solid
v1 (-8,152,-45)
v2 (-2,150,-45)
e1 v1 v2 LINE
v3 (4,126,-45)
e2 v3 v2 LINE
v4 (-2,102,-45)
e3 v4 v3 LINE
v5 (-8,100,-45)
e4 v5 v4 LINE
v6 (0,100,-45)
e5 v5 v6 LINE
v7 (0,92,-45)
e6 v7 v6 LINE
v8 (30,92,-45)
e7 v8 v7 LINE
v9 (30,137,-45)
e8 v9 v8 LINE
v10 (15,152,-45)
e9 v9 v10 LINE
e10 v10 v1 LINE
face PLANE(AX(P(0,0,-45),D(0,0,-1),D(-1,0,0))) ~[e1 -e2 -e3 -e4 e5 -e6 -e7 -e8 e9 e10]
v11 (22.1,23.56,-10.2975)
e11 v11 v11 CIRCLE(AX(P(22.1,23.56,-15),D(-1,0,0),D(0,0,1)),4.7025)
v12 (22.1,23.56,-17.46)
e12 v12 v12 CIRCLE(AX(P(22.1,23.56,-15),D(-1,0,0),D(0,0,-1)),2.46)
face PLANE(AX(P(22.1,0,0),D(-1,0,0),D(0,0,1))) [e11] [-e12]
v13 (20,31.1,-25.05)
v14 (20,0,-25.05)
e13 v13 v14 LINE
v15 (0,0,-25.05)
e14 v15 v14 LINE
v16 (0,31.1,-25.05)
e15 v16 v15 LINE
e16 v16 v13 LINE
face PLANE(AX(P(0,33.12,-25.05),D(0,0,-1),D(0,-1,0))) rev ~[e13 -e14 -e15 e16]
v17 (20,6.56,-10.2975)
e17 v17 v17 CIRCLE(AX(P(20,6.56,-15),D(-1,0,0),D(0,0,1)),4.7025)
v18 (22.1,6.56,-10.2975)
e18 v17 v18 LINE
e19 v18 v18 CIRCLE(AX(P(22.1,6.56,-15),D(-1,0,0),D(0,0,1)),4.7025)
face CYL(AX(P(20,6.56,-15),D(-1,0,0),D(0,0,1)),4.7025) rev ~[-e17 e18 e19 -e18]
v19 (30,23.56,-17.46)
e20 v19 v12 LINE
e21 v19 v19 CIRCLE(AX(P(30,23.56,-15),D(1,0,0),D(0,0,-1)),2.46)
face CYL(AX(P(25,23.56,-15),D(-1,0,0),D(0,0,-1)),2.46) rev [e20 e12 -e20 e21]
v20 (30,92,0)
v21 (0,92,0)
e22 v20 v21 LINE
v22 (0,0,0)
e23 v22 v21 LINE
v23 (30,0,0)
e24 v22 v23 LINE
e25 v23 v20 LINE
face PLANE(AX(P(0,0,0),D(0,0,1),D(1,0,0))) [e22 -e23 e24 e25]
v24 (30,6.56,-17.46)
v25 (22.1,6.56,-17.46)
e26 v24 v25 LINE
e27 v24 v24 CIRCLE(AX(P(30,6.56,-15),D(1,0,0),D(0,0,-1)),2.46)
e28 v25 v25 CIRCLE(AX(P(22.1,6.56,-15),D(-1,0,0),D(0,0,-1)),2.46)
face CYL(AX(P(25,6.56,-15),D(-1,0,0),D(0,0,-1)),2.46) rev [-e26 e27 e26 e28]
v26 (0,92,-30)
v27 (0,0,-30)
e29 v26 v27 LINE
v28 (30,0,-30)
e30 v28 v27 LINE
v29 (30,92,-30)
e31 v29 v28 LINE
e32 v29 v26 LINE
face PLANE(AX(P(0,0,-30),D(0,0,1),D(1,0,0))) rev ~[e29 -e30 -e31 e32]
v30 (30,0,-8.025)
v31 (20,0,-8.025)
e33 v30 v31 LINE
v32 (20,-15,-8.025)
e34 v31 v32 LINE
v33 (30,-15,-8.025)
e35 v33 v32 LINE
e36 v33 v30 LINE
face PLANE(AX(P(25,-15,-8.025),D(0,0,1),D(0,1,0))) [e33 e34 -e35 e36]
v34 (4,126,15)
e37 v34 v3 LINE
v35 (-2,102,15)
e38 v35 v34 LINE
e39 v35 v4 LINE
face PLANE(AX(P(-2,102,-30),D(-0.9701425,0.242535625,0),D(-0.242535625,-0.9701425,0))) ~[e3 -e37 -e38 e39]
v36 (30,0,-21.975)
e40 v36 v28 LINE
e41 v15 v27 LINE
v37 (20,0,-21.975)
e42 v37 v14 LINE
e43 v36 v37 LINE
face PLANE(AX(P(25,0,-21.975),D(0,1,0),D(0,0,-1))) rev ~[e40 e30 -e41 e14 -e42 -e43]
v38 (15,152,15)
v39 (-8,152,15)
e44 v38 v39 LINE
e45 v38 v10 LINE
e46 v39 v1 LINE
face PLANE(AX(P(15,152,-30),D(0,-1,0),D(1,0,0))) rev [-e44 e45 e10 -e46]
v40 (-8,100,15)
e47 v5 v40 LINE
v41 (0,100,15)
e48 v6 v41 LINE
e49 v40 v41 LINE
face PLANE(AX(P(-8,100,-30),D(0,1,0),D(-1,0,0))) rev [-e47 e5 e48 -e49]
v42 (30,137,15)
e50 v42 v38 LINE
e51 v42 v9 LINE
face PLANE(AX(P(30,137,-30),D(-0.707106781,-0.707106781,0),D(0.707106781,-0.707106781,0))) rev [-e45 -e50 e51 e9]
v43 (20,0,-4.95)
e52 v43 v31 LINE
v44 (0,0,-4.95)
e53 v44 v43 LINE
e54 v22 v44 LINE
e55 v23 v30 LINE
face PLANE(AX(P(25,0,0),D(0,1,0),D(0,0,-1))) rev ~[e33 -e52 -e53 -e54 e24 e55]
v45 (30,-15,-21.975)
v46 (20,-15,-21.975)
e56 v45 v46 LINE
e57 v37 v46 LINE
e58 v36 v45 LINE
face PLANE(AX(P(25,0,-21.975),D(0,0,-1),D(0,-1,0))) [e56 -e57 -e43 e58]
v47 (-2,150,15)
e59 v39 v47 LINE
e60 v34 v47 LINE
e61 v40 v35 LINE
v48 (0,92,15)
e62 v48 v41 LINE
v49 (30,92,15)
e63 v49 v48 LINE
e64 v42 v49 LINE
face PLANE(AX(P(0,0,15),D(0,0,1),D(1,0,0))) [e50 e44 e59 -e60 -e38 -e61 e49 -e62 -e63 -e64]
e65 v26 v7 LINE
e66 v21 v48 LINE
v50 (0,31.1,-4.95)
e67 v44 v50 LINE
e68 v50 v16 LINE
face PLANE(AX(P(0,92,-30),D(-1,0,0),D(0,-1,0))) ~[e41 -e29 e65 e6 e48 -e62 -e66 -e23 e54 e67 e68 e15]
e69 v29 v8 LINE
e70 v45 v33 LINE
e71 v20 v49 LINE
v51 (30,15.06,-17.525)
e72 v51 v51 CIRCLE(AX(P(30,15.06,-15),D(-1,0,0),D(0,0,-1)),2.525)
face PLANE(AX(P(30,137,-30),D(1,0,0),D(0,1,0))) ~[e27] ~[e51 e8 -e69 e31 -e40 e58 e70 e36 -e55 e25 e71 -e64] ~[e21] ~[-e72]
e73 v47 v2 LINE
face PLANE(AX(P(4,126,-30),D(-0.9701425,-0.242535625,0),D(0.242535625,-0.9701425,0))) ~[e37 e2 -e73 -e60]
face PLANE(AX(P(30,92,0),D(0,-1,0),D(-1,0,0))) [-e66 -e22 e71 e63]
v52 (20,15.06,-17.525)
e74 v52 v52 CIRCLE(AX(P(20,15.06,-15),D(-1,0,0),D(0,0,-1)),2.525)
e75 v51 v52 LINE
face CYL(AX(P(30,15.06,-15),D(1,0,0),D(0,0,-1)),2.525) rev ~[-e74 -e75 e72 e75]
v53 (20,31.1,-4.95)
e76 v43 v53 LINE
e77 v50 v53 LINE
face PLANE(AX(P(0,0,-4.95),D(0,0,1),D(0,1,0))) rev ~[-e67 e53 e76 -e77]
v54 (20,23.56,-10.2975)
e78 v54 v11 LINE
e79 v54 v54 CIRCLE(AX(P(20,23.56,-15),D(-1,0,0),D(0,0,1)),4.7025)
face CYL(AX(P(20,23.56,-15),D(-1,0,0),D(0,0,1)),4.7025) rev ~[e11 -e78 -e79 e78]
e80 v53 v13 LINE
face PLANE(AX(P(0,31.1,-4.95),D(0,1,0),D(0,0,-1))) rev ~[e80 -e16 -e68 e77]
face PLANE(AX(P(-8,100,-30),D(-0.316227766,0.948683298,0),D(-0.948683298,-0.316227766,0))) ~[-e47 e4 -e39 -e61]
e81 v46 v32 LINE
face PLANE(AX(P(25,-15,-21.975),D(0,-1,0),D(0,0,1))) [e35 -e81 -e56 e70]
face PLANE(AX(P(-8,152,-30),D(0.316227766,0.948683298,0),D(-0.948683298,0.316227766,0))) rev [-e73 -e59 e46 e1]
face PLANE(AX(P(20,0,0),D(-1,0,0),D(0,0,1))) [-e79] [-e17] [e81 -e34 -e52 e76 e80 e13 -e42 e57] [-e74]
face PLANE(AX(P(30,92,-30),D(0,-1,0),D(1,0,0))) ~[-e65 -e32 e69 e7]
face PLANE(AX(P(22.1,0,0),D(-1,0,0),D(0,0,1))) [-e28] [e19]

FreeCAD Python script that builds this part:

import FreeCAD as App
import Part
import Sketcher
Q = App.Units.Quantity

doc = App.newDocument("Part")
body = doc.addObject("PartDesign::Body", "Body")

# Sketch on XY plane
sketch1 = body.newObject("Sketcher::SketchObject", "Sketch")
sketch1.AttachmentSupport = (doc.getObject("XY_Plane"), [""])
sketch1.MapMode = "FlatFace"
sketch1.addGeometry([
    Part.LineSegment(App.Vector(0, 40, 0), App.Vector(0, 0, 0)),
    Part.LineSegment(App.Vector(0, 0, 0), App.Vector(25, 0, 0)),
    Part.LineSegment(App.Vector(25, 0, 0), App.Vector(25, 40, 0)),
    Part.LineSegment(App.Vector(25, 40, 0), App.Vector(0, 40, 0)),
], False)
sketch1.addConstraint([
    Sketcher.Constraint("Coincident", 0, 2, 1, 1),
    Sketcher.Constraint("Coincident", 1, 2, 2, 1),
    Sketcher.Constraint("Coincident", 2, 2, 3, 1),
    Sketcher.Constraint("Coincident", 3, 2, 0, 1),
    Sketcher.Constraint("Vertical", 0),
    Sketcher.Constraint("Horizontal", 1),
    Sketcher.Constraint("Vertical", 2),
    Sketcher.Constraint("Horizontal", 3),
    Sketcher.Constraint("Coincident", 0, 2, -1, 1),
    Sketcher.Constraint("DistanceX", 1, 1, 1, 2, Q("25 mm")),
    Sketcher.Constraint("DistanceY", 0, 2, 0, 1, Q("40 mm")),
])
pad1 = body.newObject("PartDesign::Pad", "Pad")
pad1.Profile = sketch1
pad1.Length = 30
pad1.Reversed = True

# Sketch on YZ plane
sketch2 = body.newObject("Sketcher::SketchObject", "Sketch001")
sketch2.AttachmentSupport = (doc.getObject("YZ_Plane"), [""])
sketch2.MapMode = "FlatFace"
sketch2.AttachmentOffset = App.Placement(App.Vector(0, 0, 25), App.Rotation())
sketch2.addGeometry(Part.Circle(App.Vector(6.56, -15, 0), App.Vector(0, 0, 1), 2.46), False)
sketch2.addConstraint([
    Sketcher.Constraint("Diameter", 0, Q("4.92 mm")),
    Sketcher.Constraint("DistanceY", 0, 3, -1, 1, Q("15 mm")),
    Sketcher.Constraint("DistanceX", -1, 1, 0, 3, Q("6.56 mm")),
])
pocket1 = body.newObject("PartDesign::Pocket", "Pocket")
pocket1.Profile = sketch2
pocket1.Length = 30

# Sketch on YZ plane
sketch3 = body.newObject("Sketcher::SketchObject", "Sketch002")
sketch3.AttachmentSupport = (doc.getObject("YZ_Plane"), [""])
sketch3.MapMode = "FlatFace"
sketch3.addGeometry([
    Part.LineSegment(App.Vector(0, -25.05, 0), App.Vector(0, -4.95, 0)),
    Part.LineSegment(App.Vector(0, -4.95, 0), App.Vector(33.12, -4.95, 0)),
    Part.LineSegment(App.Vector(33.12, -4.95, 0), App.Vector(33.12, -25.05, 0)),
    Part.LineSegment(App.Vector(33.12, -25.05, 0), App.Vector(0, -25.05, 0)),
], False)
sketch3.addConstraint([
    Sketcher.Constraint("Coincident", 0, 2, 1, 1),
    Sketcher.Constraint("Coincident", 1, 2, 2, 1),
    Sketcher.Constraint("Coincident", 2, 2, 3, 1),
    Sketcher.Constraint("Coincident", 3, 2, 0, 1),
    Sketcher.Constraint("Vertical", 0),
    Sketcher.Constraint("Horizontal", 1),
    Sketcher.Constraint("Vertical", 2),
    Sketcher.Constraint("Horizontal", 3),
    Sketcher.Constraint("PointOnObject", 0, 2, -2),
    Sketcher.Constraint("DistanceY", 0, 1, 0, 2, Q("20.1 mm")),
    Sketcher.Constraint("DistanceX", 1, 1, 1, 2, Q("33.12 mm")),
    Sketcher.Constraint("DistanceY", 0, 2, -1, 1, Q("4.95 mm")),
])
pocket2 = body.newObject("PartDesign::Pocket", "Pocket001")
pocket2.Profile = sketch3
pocket2.Length = 20
pocket2.Reversed = True

# Sketch on XZ plane
sketch4 = body.newObject("Sketcher::SketchObject", "Sketch003")
sketch4.AttachmentSupport = (doc.getObject("XZ_Plane"), [""])
sketch4.MapMode = "FlatFace"
sketch4.addGeometry([
    Part.LineSegment(App.Vector(25, -8.025, 0), App.Vector(20, -8.025, 0)),
    Part.LineSegment(App.Vector(20, -8.025, 0), App.Vector(20, -21.975, 0)),
    Part.LineSegment(App.Vector(20, -21.975, 0), App.Vector(25, -21.975, 0)),
    Part.LineSegment(App.Vector(25, -21.975, 0), App.Vector(25, -8.025, 0)),
], False)
sketch4.addConstraint([
    Sketcher.Constraint("Coincident", 0, 2, 1, 1),
    Sketcher.Constraint("Coincident", 1, 2, 2, 1),
    Sketcher.Constraint("Coincident", 2, 2, 3, 1),
    Sketcher.Constraint("Coincident", 3, 2, 0, 1),
    Sketcher.Constraint("Horizontal", 0),
    Sketcher.Constraint("Vertical", 1),
    Sketcher.Constraint("Horizontal", 2),
    Sketcher.Constraint("Vertical", 3),
    Sketcher.Constraint("DistanceY", 1, 2, 1, 1, Q("13.95 mm")),
    Sketcher.Constraint("DistanceX", 0, 2, 0, 1, Q("5 mm")),
    Sketcher.Constraint("DistanceX", -1, 1, 0, 2, Q("20 mm")),
    Sketcher.Constraint("DistanceY", 0, 2, -1, 1, Q("8.025 mm")),
])
pad2 = body.newObject("PartDesign::Pad", "Pad001")
pad2.Profile = sketch4
pad2.Length = 15

# Sketch on YZ plane
sketch5 = body.newObject("Sketcher::SketchObject", "Sketch004")
sketch5.AttachmentSupport = (doc.getObject("YZ_Plane"), [""])
sketch5.MapMode = "FlatFace"
sketch5.AttachmentOffset = App.Placement(App.Vector(0, 0, 20), App.Rotation())
sketch5.addGeometry([
    Part.Circle(App.Vector(6.56, -15, 0), App.Vector(0, 0, 1), 4.7025),
    Part.Circle(App.Vector(6.56, -15, 0), App.Vector(0, 0, 1), 2.46),
], False)
sketch5.addConstraint([
    Sketcher.Constraint("Coincident", 1, 3, 0, 3),
    Sketcher.Constraint("Diameter", 0, Q("9.405 mm")),
    Sketcher.Constraint("Diameter", 1, Q("4.92 mm")),
    Sketcher.Constraint("DistanceY", 0, 3, -1, 1, Q("15 mm")),
    Sketcher.Constraint("DistanceX", -1, 1, 0, 3, Q("6.56 mm")),
])
pocket3 = body.newObject("PartDesign::Pocket", "Pocket002")
pocket3.Profile = sketch5
pocket3.Length = 2.1
pocket3.Reversed = True

# Sketch on YZ plane
sketch6 = body.newObject("Sketcher::SketchObject", "Sketch005")
sketch6.AttachmentSupport = (doc.getObject("YZ_Plane"), [""])
sketch6.MapMode = "FlatFace"
sketch6.AttachmentOffset = App.Placement(App.Vector(0, 0, 25), App.Rotation())
sketch6.addGeometry(Part.Circle(App.Vector(23.56, -15, 0), App.Vector(0, 0, 1), 2.46), False)
sketch6.addConstraint([
    Sketcher.Constraint("Diameter", 0, Q("4.92 mm")),
    Sketcher.Constraint("DistanceY", 0, 3, -1, 1, Q("15 mm")),
    Sketcher.Constraint("DistanceX", -1, 1, 0, 3, Q("23.56 mm")),
])
pocket4 = body.newObject("PartDesign::Pocket", "Pocket003")
pocket4.Profile = sketch6
pocket4.Length = 10

# Sketch on YZ plane
sketch7 = body.newObject("Sketcher::SketchObject", "Sketch006")
sketch7.AttachmentSupport = (doc.getObject("YZ_Plane"), [""])
sketch7.MapMode = "FlatFace"
sketch7.AttachmentOffset = App.Placement(App.Vector(0, 0, 20), App.Rotation())
sketch7.addGeometry([
    Part.Circle(App.Vector(23.56, -15, 0), App.Vector(0, 0, 1), 4.7025),
    Part.Circle(App.Vector(23.56, -15, 0), App.Vector(0, 0, 1), 2.46),
], False)
sketch7.addConstraint([
    Sketcher.Constraint("Coincident", 1, 3, 0, 3),
    Sketcher.Constraint("Diameter", 0, Q("9.405 mm")),
    Sketcher.Constraint("Diameter", 1, Q("4.92 mm")),
    Sketcher.Constraint("DistanceY", 0, 3, -1, 1, Q("15 mm")),
    Sketcher.Constraint("DistanceX", -1, 1, 0, 3, Q("23.56 mm")),
])
pocket5 = body.newObject("PartDesign::Pocket", "Pocket004")
pocket5.Profile = sketch7
pocket5.Length = 2.1
pocket5.Reversed = True

# Sketch on YZ plane
sketch8 = body.newObject("Sketcher::SketchObject", "Sketch007")
sketch8.AttachmentSupport = (doc.getObject("YZ_Plane"), [""])
sketch8.MapMode = "FlatFace"
sketch8.AttachmentOffset = App.Placement(App.Vector(0, 0, 25), App.Rotation())
sketch8.addGeometry([
    Part.LineSegment(App.Vector(0, -30, 0), App.Vector(40, -30, 0)),  # 0
    Part.LineSegment(App.Vector(40, -30, 0), App.Vector(40, 0, 0)),  # 1
    Part.LineSegment(App.Vector(40, 0, 0), App.Vector(0, 0, 0)),  # 2
    Part.LineSegment(App.Vector(0, 0, 0), App.Vector(0, -8.025, 0)),  # 3
    Part.LineSegment(App.Vector(0, -8.025, 0), App.Vector(-15, -8.025, 0)),  # 4
    Part.LineSegment(App.Vector(-15, -8.025, 0), App.Vector(-15, -21.975, 0)),  # 5
    Part.LineSegment(App.Vector(-15, -21.975, 0), App.Vector(0, -21.975, 0)),  # 6
    Part.LineSegment(App.Vector(0, -21.975, 0), App.Vector(0, -30, 0)),  # 7
    Part.Circle(App.Vector(6.56, -15, 0), App.Vector(0, 0, 1), 2.46),  # 8
    Part.Circle(App.Vector(23.56, -15, 0), App.Vector(0, 0, 1), 2.46),  # 9
], False)
sketch8.addConstraint([
    Sketcher.Constraint("Coincident", 0, 2, 1, 1),
    Sketcher.Constraint("Coincident", 1, 2, 2, 1),
    Sketcher.Constraint("Coincident", 2, 2, 3, 1),
    Sketcher.Constraint("Coincident", 3, 2, 4, 1),
    Sketcher.Constraint("Coincident", 4, 2, 5, 1),
    Sketcher.Constraint("Coincident", 5, 2, 6, 1),
    Sketcher.Constraint("Coincident", 6, 2, 7, 1),
    Sketcher.Constraint("Coincident", 7, 2, 0, 1),
    Sketcher.Constraint("Horizontal", 0),
    Sketcher.Constraint("Vertical", 1),
    Sketcher.Constraint("Horizontal", 2),
    Sketcher.Constraint("Vertical", 3),
    Sketcher.Constraint("Horizontal", 4),
    Sketcher.Constraint("Vertical", 5),
    Sketcher.Constraint("Horizontal", 6),
    Sketcher.Constraint("Vertical", 7),
    Sketcher.Constraint("Coincident", 2, 2, -1, 1),
    Sketcher.Constraint("Equal", 8, 9),
    Sketcher.Constraint("PointOnObject", 6, 2, -2),
    Sketcher.Constraint("Horizontal", 8, 3, 9, 3),
    Sketcher.Constraint("Equal", 3, 7),
    Sketcher.Constraint("Diameter", 8, Q("4.92 mm")),
    Sketcher.Constraint("DistanceX", 0, 1, 0, 2, Q("40 mm")),
    Sketcher.Constraint("DistanceX", 4, 2, 4, 1, Q("15 mm")),
    Sketcher.Constraint("DistanceY", 1, 1, 1, 2, Q("30 mm")),
    Sketcher.Constraint("DistanceY", 8, 3, -1, 1, Q("15 mm")),
    Sketcher.Constraint("DistanceX", 8, 3, 9, 3, Q("17 mm")),
    Sketcher.Constraint("DistanceY", 5, 2, 5, 1, Q("13.95 mm")),
    Sketcher.Constraint("DistanceX", -1, 1, 8, 3, Q("6.56 mm")),
])
pad3 = body.newObject("PartDesign::Pad", "Pad002")
pad3.Profile = sketch8
pad3.Length = 5

# Sketch on XZ plane
sketch9 = body.newObject("Sketcher::SketchObject", "Sketch008")
sketch9.AttachmentSupport = (doc.getObject("XZ_Plane"), [""])
sketch9.MapMode = "FlatFace"
sketch9.AttachmentOffset = App.Placement(App.Vector(0, 0, -40), App.Rotation())
sketch9.addGeometry([
    Part.LineSegment(App.Vector(30, -30, 0), App.Vector(0, -30, 0)),
    Part.LineSegment(App.Vector(0, -30, 0), App.Vector(0, 0, 0)),
    Part.LineSegment(App.Vector(0, 0, 0), App.Vector(30, 0, 0)),
    Part.LineSegment(App.Vector(30, 0, 0), App.Vector(30, -30, 0)),
], False)
sketch9.addConstraint([
    Sketcher.Constraint("Coincident", 0, 2, 1, 1),
    Sketcher.Constraint("Coincident", 1, 2, 2, 1),
    Sketcher.Constraint("Coincident", 2, 2, 3, 1),
    Sketcher.Constraint("Coincident", 3, 2, 0, 1),
    Sketcher.Constraint("Horizontal", 0),
    Sketcher.Constraint("Vertical", 1),
    Sketcher.Constraint("Horizontal", 2),
    Sketcher.Constraint("Vertical", 3),
    Sketcher.Constraint("Coincident", 1, 2, -1, 1),
    Sketcher.Constraint("Equal", 2, 1),
    Sketcher.Constraint("DistanceX", 0, 2, 0, 1, Q("30 mm")),
])
pad4 = body.newObject("PartDesign::Pad", "Pad003")
pad4.Profile = sketch9
pad4.Length = 30
pad4.Reversed = True

# Sketch on YZ plane
sketch10 = body.newObject("Sketcher::SketchObject", "Sketch009")
sketch10.AttachmentSupport = (doc.getObject("YZ_Plane"), [""])
sketch10.MapMode = "FlatFace"
sketch10.AttachmentOffset = App.Placement(App.Vector(0, 0, 30), App.Rotation())
sketch10.addGeometry(Part.Circle(App.Vector(15.06, -15, 0), App.Vector(0, 0, 1), 2.525), False)
sketch10.addConstraint([
    Sketcher.Constraint("Diameter", 0, Q("5.05 mm")),
    Sketcher.Constraint("DistanceY", 0, 3, -1, 1, Q("15 mm")),
    Sketcher.Constraint("DistanceX", -1, 1, 0, 3, Q("15.06 mm")),
])
pocket6 = body.newObject("PartDesign::Pocket", "Pocket005")
pocket6.Profile = sketch10
pocket6.Length = 30

# Sketch on XY plane
sketch11 = body.newObject("Sketcher::SketchObject", "Sketch010")
sketch11.AttachmentSupport = (doc.getObject("XY_Plane"), [""])
sketch11.MapMode = "FlatFace"
sketch11.addGeometry([
    Part.LineSegment(App.Vector(0, 70, 0), App.Vector(30, 70, 0)),  # 0
    Part.LineSegment(App.Vector(30, 70, 0), App.Vector(30, 137, 0)),  # 1
    Part.LineSegment(App.Vector(30, 137, 0), App.Vector(15, 152, 0)),  # 2
    Part.LineSegment(App.Vector(15, 152, 0), App.Vector(-8, 152, 0)),  # 3
    Part.LineSegment(App.Vector(-8, 152, 0), App.Vector(-2, 150, 0)),  # 4
    Part.LineSegment(App.Vector(-2, 150, 0), App.Vector(4, 126, 0)),  # 5
    Part.LineSegment(App.Vector(4, 126, 0), App.Vector(-2, 102, 0)),  # 6
    Part.LineSegment(App.Vector(-2, 102, 0), App.Vector(-8, 100, 0)),  # 7
    Part.LineSegment(App.Vector(-8, 100, 0), App.Vector(0, 100, 0)),  # 8
    Part.LineSegment(App.Vector(0, 100, 0), App.Vector(0, 70, 0)),  # 9
], False)
sketch11.addConstraint([
    Sketcher.Constraint("Coincident", 0, 2, 1, 1),
    Sketcher.Constraint("Coincident", 1, 2, 2, 1),
    Sketcher.Constraint("Coincident", 2, 2, 3, 1),
    Sketcher.Constraint("Coincident", 3, 2, 4, 1),
    Sketcher.Constraint("Coincident", 4, 2, 5, 1),
    Sketcher.Constraint("Coincident", 5, 2, 6, 1),
    Sketcher.Constraint("Coincident", 6, 2, 7, 1),
    Sketcher.Constraint("Coincident", 7, 2, 8, 1),
    Sketcher.Constraint("Coincident", 8, 2, 9, 1),
    Sketcher.Constraint("Coincident", 9, 2, 0, 1),
    Sketcher.Constraint("Horizontal", 0),
    Sketcher.Constraint("Vertical", 1),
    Sketcher.Constraint("Horizontal", 3),
    Sketcher.Constraint("Horizontal", 8),
    Sketcher.Constraint("Vertical", 9),
    Sketcher.Constraint("PointOnObject", 8, 2, -2),
    Sketcher.Constraint("Vertical", 4, 2, 6, 2),
    Sketcher.Constraint("Vertical", 3, 2, 7, 2),
    Sketcher.Constraint("Equal", 0, 9),
    Sketcher.Constraint("Equal", 5, 6),
    Sketcher.Constraint("Equal", 4, 7),
    Sketcher.Constraint("DistanceX", 0, 1, 0, 2, Q("30 mm")),
    Sketcher.Constraint("DistanceX", 3, 2, 3, 1, Q("23 mm")),
    Sketcher.Constraint("DistanceX", 8, 1, 8, 2, Q("8 mm")),
    Sketcher.Constraint("DistanceY", 1, 1, 1, 2, Q("67 mm")),
    Sketcher.Constraint("Angle", 2, Q("135 deg")),
    Sketcher.Constraint("DistanceY", -1, 1, 0, 2, Q("70 mm")),
    Sketcher.Constraint("DistanceX", 4, 2, -1, 1, Q("2 mm")),
    Sketcher.Constraint("DistanceY", -1, 1, 4, 2, Q("150 mm")),
    Sketcher.Constraint("DistanceX", -1, 1, 5, 2, Q("4 mm")),
])
pad5 = body.newObject("PartDesign::Pad", "Pad004")
pad5.Profile = sketch11
pad5.Length = 30
pad5.Reversed = True

# Sketch on YZ plane
sketch12 = body.newObject("Sketcher::SketchObject", "Sketch011")
sketch12.AttachmentSupport = (doc.getObject("YZ_Plane"), [""])
sketch12.MapMode = "FlatFace"
sketch12.addGeometry([
    Part.LineSegment(App.Vector(33.12, -4.95, 0), App.Vector(33.12, -25.05, 0)),
    Part.LineSegment(App.Vector(33.12, -25.05, 0), App.Vector(31.1, -25.05, 0)),
    Part.LineSegment(App.Vector(31.1, -25.05, 0), App.Vector(31.1, -4.95, 0)),
    Part.LineSegment(App.Vector(31.1, -4.95, 0), App.Vector(33.12, -4.95, 0)),
], False)
sketch12.addConstraint([
    Sketcher.Constraint("Coincident", 0, 2, 1, 1),
    Sketcher.Constraint("Coincident", 1, 2, 2, 1),
    Sketcher.Constraint("Coincident", 2, 2, 3, 1),
    Sketcher.Constraint("Coincident", 3, 2, 0, 1),
    Sketcher.Constraint("Vertical", 0),
    Sketcher.Constraint("Horizontal", 1),
    Sketcher.Constraint("Vertical", 2),
    Sketcher.Constraint("Horizontal", 3),
    Sketcher.Constraint("DistanceX", 1, 2, 1, 1, Q("2.02 mm")),
    Sketcher.Constraint("DistanceY", 0, 2, 0, 1, Q("20.1 mm")),
    Sketcher.Constraint("DistanceX", -1, 1, 1, 2, Q("31.1 mm")),
    Sketcher.Constraint("DistanceY", 0, 2, -1, 1, Q("25.05 mm")),
])
pad6 = body.newObject("PartDesign::Pad", "Pad005")
pad6.Profile = sketch12
pad6.Length = 20

# Sketch on XY plane
sketch13 = body.newObject("Sketcher::SketchObject", "Sketch012")
sketch13.AttachmentSupport = (doc.getObject("XY_Plane"), [""])
sketch13.MapMode = "FlatFace"
sketch13.addGeometry([
    Part.LineSegment(App.Vector(-2, 102, 0), App.Vector(-8, 100, 0)),  # 0
    Part.LineSegment(App.Vector(-8, 100, 0), App.Vector(0, 100, 0)),  # 1
    Part.LineSegment(App.Vector(0, 100, 0), App.Vector(0, 92, 0)),  # 2
    Part.LineSegment(App.Vector(0, 92, 0), App.Vector(30, 92, 0)),  # 3
    Part.LineSegment(App.Vector(30, 92, 0), App.Vector(30, 137, 0)),  # 4
    Part.LineSegment(App.Vector(30, 137, 0), App.Vector(15, 152, 0)),  # 5
    Part.LineSegment(App.Vector(15, 152, 0), App.Vector(-8, 152, 0)),  # 6
    Part.LineSegment(App.Vector(-8, 152, 0), App.Vector(-2, 150, 0)),  # 7
    Part.LineSegment(App.Vector(-2, 150, 0), App.Vector(4, 126, 0)),  # 8
    Part.LineSegment(App.Vector(4, 126, 0), App.Vector(-2, 102, 0)),  # 9
], False)
sketch13.addConstraint([
    Sketcher.Constraint("Coincident", 0, 2, 1, 1),
    Sketcher.Constraint("Coincident", 1, 2, 2, 1),
    Sketcher.Constraint("Coincident", 2, 2, 3, 1),
    Sketcher.Constraint("Coincident", 3, 2, 4, 1),
    Sketcher.Constraint("Coincident", 4, 2, 5, 1),
    Sketcher.Constraint("Coincident", 5, 2, 6, 1),
    Sketcher.Constraint("Coincident", 6, 2, 7, 1),
    Sketcher.Constraint("Coincident", 7, 2, 8, 1),
    Sketcher.Constraint("Coincident", 8, 2, 9, 1),
    Sketcher.Constraint("Coincident", 9, 2, 0, 1),
    Sketcher.Constraint("Horizontal", 1),
    Sketcher.Constraint("Vertical", 2),
    Sketcher.Constraint("Horizontal", 3),
    Sketcher.Constraint("Vertical", 4),
    Sketcher.Constraint("Horizontal", 6),
    Sketcher.Constraint("PointOnObject", 1, 2, -2),
    Sketcher.Constraint("Vertical", 0, 2, 6, 2),
    Sketcher.Constraint("Vertical", 7, 2, 9, 2),
    Sketcher.Constraint("Equal", 1, 2),
    Sketcher.Constraint("Equal", 0, 7),
    Sketcher.Constraint("Equal", 8, 9),
    Sketcher.Constraint("DistanceY", 4, 1, 4, 2, Q("45 mm")),
    Sketcher.Constraint("DistanceX", 1, 1, 1, 2, Q("8 mm")),
    Sketcher.Constraint("DistanceX", 3, 1, 3, 2, Q("30 mm")),
    Sketcher.Constraint("DistanceX", 6, 2, 6, 1, Q("23 mm")),
    Sketcher.Constraint("Angle", 5, Q("135 deg")),
    Sketcher.Constraint("DistanceY", -1, 1, 0, 2, Q("100 mm")),
    Sketcher.Constraint("DistanceX", 7, 2, -1, 1, Q("2 mm")),
    Sketcher.Constraint("DistanceY", -1, 1, 7, 2, Q("150 mm")),
    Sketcher.Constraint("DistanceX", -1, 1, 8, 2, Q("4 mm")),
])
pad7 = body.newObject("PartDesign::Pad", "Pad006")
pad7.Profile = sketch13
pad7.Length = 15
doc.recompute()

datumplane = body.newObject("PartDesign::Plane", "DatumPlane")
datumplane.AttachmentSupport = (doc.getObject("XY_Plane"), [""])
datumplane.MapMode = "FlatFace"
datumplane.AttachmentOffset = App.Placement(App.Vector(0, 0, -15), App.Rotation())
mirrored = body.newObject("PartDesign::Mirrored", "Mirrored")
mirrored.Originals = [pad7]
mirrored.MirrorPlane = (datumplane, [""])
body.Tip = mirrored

doc.recompute()
